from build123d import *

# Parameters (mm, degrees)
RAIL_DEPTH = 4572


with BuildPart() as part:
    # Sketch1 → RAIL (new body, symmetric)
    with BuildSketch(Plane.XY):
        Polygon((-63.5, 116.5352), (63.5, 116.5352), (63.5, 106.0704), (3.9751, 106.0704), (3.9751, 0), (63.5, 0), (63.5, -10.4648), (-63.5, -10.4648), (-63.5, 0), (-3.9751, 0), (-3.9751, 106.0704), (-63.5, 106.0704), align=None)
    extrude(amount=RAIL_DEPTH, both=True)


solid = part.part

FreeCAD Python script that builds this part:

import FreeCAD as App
import Part
import Sketcher

V = App.Vector
Q = App.Units.Quantity

doc = App.newDocument("Part")
body = doc.addObject("PartDesign::Body", "Body")

# Sketch on XY plane
sketch1 = body.newObject("Sketcher::SketchObject", "Sketch")
sketch1.AttachmentSupport = (doc.getObject("XY_Plane"), [""])
sketch1.MapMode = "FlatFace"
sketch1.addGeometry(Part.LineSegment(V(64, 117, 0), V(-64, 117, 0)), False)
sketch1.addGeometry(Part.LineSegment(V(-64, 117, 0), V(-64, 106, 0)), False)
sketch1.addGeometry(Part.LineSegment(V(-64, 106, 0), V(-4, 106, 0)), False)
sketch1.addGeometry(Part.LineSegment(V(-4, 106, 0), V(-4, 0, 0)), False)
sketch1.addGeometry(Part.LineSegment(V(-4, 0, 0), V(-64, 0, 0)), False)
sketch1.addGeometry(Part.LineSegment(V(-64, 0, 0), V(-64, -10, 0)), False)
sketch1.addGeometry(Part.LineSegment(V(-64, -10, 0), V(64, -10, 0)), False)
sketch1.addGeometry(Part.LineSegment(V(64, -10, 0), V(64, 0, 0)), False)
sketch1.addGeometry(Part.LineSegment(V(64, 0, 0), V(4, 0, 0)), False)
sketch1.addGeometry(Part.LineSegment(V(4, 0, 0), V(4, 106, 0)), False)
sketch1.addGeometry(Part.LineSegment(V(4, 106, 0), V(64, 106, 0)), False)
sketch1.addGeometry(Part.LineSegment(V(64, 106, 0), V(64, 117, 0)), False)
sketch1.addConstraint(Sketcher.Constraint("Coincident", 0, 2, 1, 1))
sketch1.addConstraint(Sketcher.Constraint("Coincident", 1, 2, 2, 1))
sketch1.addConstraint(Sketcher.Constraint("Coincident", 2, 2, 3, 1))
sketch1.addConstraint(Sketcher.Constraint("Coincident", 3, 2, 4, 1))
sketch1.addConstraint(Sketcher.Constraint("Coincident", 4, 2, 5, 1))
sketch1.addConstraint(Sketcher.Constraint("Coincident", 5, 2, 6, 1))
sketch1.addConstraint(Sketcher.Constraint("Coincident", 6, 2, 7, 1))
sketch1.addConstraint(Sketcher.Constraint("Coincident", 7, 2, 8, 1))
sketch1.addConstraint(Sketcher.Constraint("Coincident", 8, 2, 9, 1))
sketch1.addConstraint(Sketcher.Constraint("Coincident", 9, 2, 10, 1))
sketch1.addConstraint(Sketcher.Constraint("Coincident", 10, 2, 11, 1))
sketch1.addConstraint(Sketcher.Constraint("Coincident", 11, 2, 0, 1))
sketch1.addConstraint(Sketcher.Constraint("Horizontal", 0))
sketch1.addConstraint(Sketcher.Constraint("Vertical", 1))
sketch1.addConstraint(Sketcher.Constraint("Horizontal", 2))
sketch1.addConstraint(Sketcher.Constraint("Vertical", 3))
sketch1.addConstraint(Sketcher.Constraint("Horizontal", 4))
sketch1.addConstraint(Sketcher.Constraint("Vertical", 5))
sketch1.addConstraint(Sketcher.Constraint("Horizontal", 6))
sketch1.addConstraint(Sketcher.Constraint("Vertical", 7))
sketch1.addConstraint(Sketcher.Constraint("Horizontal", 8))
sketch1.addConstraint(Sketcher.Constraint("Vertical", 9))
sketch1.addConstraint(Sketcher.Constraint("Horizontal", 10))
sketch1.addConstraint(Sketcher.Constraint("Vertical", 11))
sketch1.addConstraint(Sketcher.Constraint("Symmetric", 4, 2, 7, 2, -1, 1))
sketch1.addConstraint(Sketcher.Constraint("Symmetric", 3, 2, 8, 2, -2))
sketch1.addConstraint(Sketcher.Constraint("Symmetric", 1, 2, 10, 2, -2))
sketch1.addConstraint(Sketcher.Constraint("Vertical", 1, 2, 4, 2))
sketch1.addConstraint(Sketcher.Constraint("Equal", 1, 5))
sketch1.addConstraint(Sketcher.Constraint("DistanceX", 0, 2, 0, 1, Q("5 in")))
sketch1.addConstraint(Sketcher.Constraint("DistanceY", 5, 2, 0, 2, Q("5 in")))
sketch1.addConstraint(Sketcher.Constraint("DistanceY", 1, 2, 1, 1, Q("0.412 in")))
sketch1.addConstraint(Sketcher.Constraint("DistanceX", 2, 1, 2, 2, Q("2.3435 in")))
pad1 = body.newObject("PartDesign::Pad", "Pad")
pad1.Profile = sketch1
pad1.Length = Q("360 in")
pad1.Midplane = True

doc.recompute()
